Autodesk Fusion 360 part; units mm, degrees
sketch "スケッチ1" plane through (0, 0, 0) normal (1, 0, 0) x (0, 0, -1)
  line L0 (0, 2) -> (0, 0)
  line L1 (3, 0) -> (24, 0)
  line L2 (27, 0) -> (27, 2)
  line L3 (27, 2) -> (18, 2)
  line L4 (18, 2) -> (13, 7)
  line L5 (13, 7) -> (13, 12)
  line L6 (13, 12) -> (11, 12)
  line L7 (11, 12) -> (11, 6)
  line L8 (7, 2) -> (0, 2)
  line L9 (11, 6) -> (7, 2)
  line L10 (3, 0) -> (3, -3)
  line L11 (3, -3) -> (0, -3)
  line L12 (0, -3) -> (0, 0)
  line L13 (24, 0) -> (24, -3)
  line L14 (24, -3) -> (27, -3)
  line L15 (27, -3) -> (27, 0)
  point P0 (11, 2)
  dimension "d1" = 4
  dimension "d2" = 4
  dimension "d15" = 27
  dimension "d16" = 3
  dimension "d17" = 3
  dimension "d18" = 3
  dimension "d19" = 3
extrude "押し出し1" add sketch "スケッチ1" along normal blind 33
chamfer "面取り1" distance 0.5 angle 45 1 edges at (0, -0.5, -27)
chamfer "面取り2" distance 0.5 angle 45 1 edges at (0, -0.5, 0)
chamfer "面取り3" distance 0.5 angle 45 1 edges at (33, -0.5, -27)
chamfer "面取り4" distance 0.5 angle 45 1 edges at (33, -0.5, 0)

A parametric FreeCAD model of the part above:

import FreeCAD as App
import Part
import Sketcher
Q = App.Units.Quantity


def edges_at(feature, points):
    """Names of the edges that pass closest to the given points."""
    edges = feature.Shape.Edges
    near = lambda p: min(range(len(edges)), key=lambda i: edges[i].distToShape(Part.Vertex(*p))[0])
    return sorted({f"Edge{near(p) + 1}" for p in points})

doc = App.newDocument("Part")
body = doc.addObject("PartDesign::Body", "Body")

sketch1 = body.newObject("Sketcher::SketchObject", "Sketch")
sketch1.AttachmentSupport = (doc.getObject("YZ_Plane"), [""])
sketch1.MapMode = "FlatFace"
sketch1.addGeometry(Part.LineSegment(App.Vector(2, -7, 0), App.Vector(2, 0, 0)), False)
sketch1.addGeometry(Part.LineSegment(App.Vector(2, 0, 0), App.Vector(-3, 0, 0)), False)
sketch1.addGeometry(Part.LineSegment(App.Vector(-3, 0, 0), App.Vector(-3, -3, 0)), False)
sketch1.addGeometry(Part.LineSegment(App.Vector(-3, -3, 0), App.Vector(0, -3, 0)), False)
sketch1.addGeometry(Part.LineSegment(App.Vector(0, -3, 0), App.Vector(0, -24, 0)), False)
sketch1.addGeometry(Part.LineSegment(App.Vector(0, -24, 0), App.Vector(-3, -24, 0)), False)
sketch1.addGeometry(Part.LineSegment(App.Vector(-3, -24, 0), App.Vector(-3, -27, 0)), False)
sketch1.addGeometry(Part.LineSegment(App.Vector(-3, -27, 0), App.Vector(2, -27, 0)), False)
sketch1.addGeometry(Part.LineSegment(App.Vector(2, -27, 0), App.Vector(2, -18, 0)), False)
sketch1.addGeometry(Part.LineSegment(App.Vector(2, -18, 0), App.Vector(7, -13, 0)), False)
sketch1.addGeometry(Part.LineSegment(App.Vector(7, -13, 0), App.Vector(12, -13, 0)), False)
sketch1.addGeometry(Part.LineSegment(App.Vector(12, -13, 0), App.Vector(12, -11, 0)), False)
sketch1.addGeometry(Part.LineSegment(App.Vector(12, -11, 0), App.Vector(6, -11, 0)), False)
sketch1.addGeometry(Part.LineSegment(App.Vector(6, -11, 0), App.Vector(2, -7, 0)), False)
sketch1.addConstraint(Sketcher.Constraint("Coincident", 0, 2, 1, 1))
sketch1.addConstraint(Sketcher.Constraint("Coincident", 1, 2, 2, 1))
sketch1.addConstraint(Sketcher.Constraint("Coincident", 2, 2, 3, 1))
sketch1.addConstraint(Sketcher.Constraint("Coincident", 3, 2, 4, 1))
sketch1.addConstraint(Sketcher.Constraint("Coincident", 4, 2, 5, 1))
sketch1.addConstraint(Sketcher.Constraint("Coincident", 5, 2, 6, 1))
sketch1.addConstraint(Sketcher.Constraint("Coincident", 6, 2, 7, 1))
sketch1.addConstraint(Sketcher.Constraint("Coincident", 7, 2, 8, 1))
sketch1.addConstraint(Sketcher.Constraint("Coincident", 8, 2, 9, 1))
sketch1.addConstraint(Sketcher.Constraint("Coincident", 9, 2, 10, 1))
sketch1.addConstraint(Sketcher.Constraint("Coincident", 10, 2, 11, 1))
sketch1.addConstraint(Sketcher.Constraint("Coincident", 11, 2, 12, 1))
sketch1.addConstraint(Sketcher.Constraint("Coincident", 12, 2, 13, 1))
sketch1.addConstraint(Sketcher.Constraint("Coincident", 13, 2, 0, 1))
sketch1.addConstraint(Sketcher.Constraint("Vertical", 0))
sketch1.addConstraint(Sketcher.Constraint("Horizontal", 1))
sketch1.addConstraint(Sketcher.Constraint("Vertical", 2))
sketch1.addConstraint(Sketcher.Constraint("Horizontal", 3))
sketch1.addConstraint(Sketcher.Constraint("Vertical", 4))
sketch1.addConstraint(Sketcher.Constraint("Horizontal", 5))
sketch1.addConstraint(Sketcher.Constraint("Vertical", 6))
sketch1.addConstraint(Sketcher.Constraint("Horizontal", 7))
sketch1.addConstraint(Sketcher.Constraint("Vertical", 8))
sketch1.addConstraint(Sketcher.Constraint("Horizontal", 10))
sketch1.addConstraint(Sketcher.Constraint("Vertical", 11))
sketch1.addConstraint(Sketcher.Constraint("Horizontal", 12))
sketch1.addConstraint(Sketcher.Constraint("PointOnObject", 0, 2, -1))
sketch1.addConstraint(Sketcher.Constraint("PointOnObject", 3, 2, -2))
sketch1.addConstraint(Sketcher.Constraint("Perpendicular", 9, 13))
sketch1.addConstraint(Sketcher.Constraint("Vertical", 2, 2, 5, 2))
sketch1.addConstraint(Sketcher.Constraint("Vertical", 0, 2, 7, 2))
sketch1.addConstraint(Sketcher.Constraint("Equal", 7, 10))
sketch1.addConstraint(Sketcher.Constraint("Equal", 5, 2))
sketch1.addConstraint(Sketcher.Constraint("Equal", 2, 6))
sketch1.addConstraint(Sketcher.Constraint("DistanceX", 3, 1, 3, 2, Q("3 mm")))
sketch1.addConstraint(Sketcher.Constraint("DistanceY", 6, 2, -1, 1, Q("27 mm")))
sketch1.addConstraint(Sketcher.Constraint("DistanceX", 8, 2, 12, 2, Q("4 mm")))
sketch1.addConstraint(Sketcher.Constraint("DistanceY", 13, 2, 3, 2, Q("4 mm")))
sketch1.addConstraint(Sketcher.Constraint("DistanceY", 12, 2, 13, 2, Q("4 mm")))
sketch1.addConstraint(Sketcher.Constraint("DistanceX", 1, 2, 1, 1, Q("5 mm")))
sketch1.addConstraint(Sketcher.Constraint("DistanceX", 12, 2, 12, 1, Q("6 mm")))
sketch1.addConstraint(Sketcher.Constraint("DistanceY", 8, 1, 8, 2, Q("9 mm")))
pad1 = body.newObject("PartDesign::Pad", "Pad")
pad1.Profile = sketch1
pad1.Length = 33
doc.recompute()

chamfer = body.newObject("PartDesign::Chamfer", "Chamfer")
chamfer.Base = (pad1, edges_at(pad1, [(0, -0.5, -27)]))
chamfer.Size = 0.5
doc.recompute()

chamfer2 = body.newObject("PartDesign::Chamfer", "Chamfer001")
chamfer2.Base = (chamfer, edges_at(chamfer, [(0, -0.5, 0)]))
chamfer2.Size = 0.5
doc.recompute()

chamfer3 = body.newObject("PartDesign::Chamfer", "Chamfer002")
chamfer3.Base = (chamfer2, edges_at(chamfer2, [(33, -0.5, -27)]))
chamfer3.Size = 0.5
doc.recompute()

chamfer4 = body.newObject("PartDesign::Chamfer", "Chamfer003")
chamfer4.Base = (chamfer3, edges_at(chamfer3, [(33, -0.5, 0)]))
chamfer4.Size = 0.5

doc.recompute()
